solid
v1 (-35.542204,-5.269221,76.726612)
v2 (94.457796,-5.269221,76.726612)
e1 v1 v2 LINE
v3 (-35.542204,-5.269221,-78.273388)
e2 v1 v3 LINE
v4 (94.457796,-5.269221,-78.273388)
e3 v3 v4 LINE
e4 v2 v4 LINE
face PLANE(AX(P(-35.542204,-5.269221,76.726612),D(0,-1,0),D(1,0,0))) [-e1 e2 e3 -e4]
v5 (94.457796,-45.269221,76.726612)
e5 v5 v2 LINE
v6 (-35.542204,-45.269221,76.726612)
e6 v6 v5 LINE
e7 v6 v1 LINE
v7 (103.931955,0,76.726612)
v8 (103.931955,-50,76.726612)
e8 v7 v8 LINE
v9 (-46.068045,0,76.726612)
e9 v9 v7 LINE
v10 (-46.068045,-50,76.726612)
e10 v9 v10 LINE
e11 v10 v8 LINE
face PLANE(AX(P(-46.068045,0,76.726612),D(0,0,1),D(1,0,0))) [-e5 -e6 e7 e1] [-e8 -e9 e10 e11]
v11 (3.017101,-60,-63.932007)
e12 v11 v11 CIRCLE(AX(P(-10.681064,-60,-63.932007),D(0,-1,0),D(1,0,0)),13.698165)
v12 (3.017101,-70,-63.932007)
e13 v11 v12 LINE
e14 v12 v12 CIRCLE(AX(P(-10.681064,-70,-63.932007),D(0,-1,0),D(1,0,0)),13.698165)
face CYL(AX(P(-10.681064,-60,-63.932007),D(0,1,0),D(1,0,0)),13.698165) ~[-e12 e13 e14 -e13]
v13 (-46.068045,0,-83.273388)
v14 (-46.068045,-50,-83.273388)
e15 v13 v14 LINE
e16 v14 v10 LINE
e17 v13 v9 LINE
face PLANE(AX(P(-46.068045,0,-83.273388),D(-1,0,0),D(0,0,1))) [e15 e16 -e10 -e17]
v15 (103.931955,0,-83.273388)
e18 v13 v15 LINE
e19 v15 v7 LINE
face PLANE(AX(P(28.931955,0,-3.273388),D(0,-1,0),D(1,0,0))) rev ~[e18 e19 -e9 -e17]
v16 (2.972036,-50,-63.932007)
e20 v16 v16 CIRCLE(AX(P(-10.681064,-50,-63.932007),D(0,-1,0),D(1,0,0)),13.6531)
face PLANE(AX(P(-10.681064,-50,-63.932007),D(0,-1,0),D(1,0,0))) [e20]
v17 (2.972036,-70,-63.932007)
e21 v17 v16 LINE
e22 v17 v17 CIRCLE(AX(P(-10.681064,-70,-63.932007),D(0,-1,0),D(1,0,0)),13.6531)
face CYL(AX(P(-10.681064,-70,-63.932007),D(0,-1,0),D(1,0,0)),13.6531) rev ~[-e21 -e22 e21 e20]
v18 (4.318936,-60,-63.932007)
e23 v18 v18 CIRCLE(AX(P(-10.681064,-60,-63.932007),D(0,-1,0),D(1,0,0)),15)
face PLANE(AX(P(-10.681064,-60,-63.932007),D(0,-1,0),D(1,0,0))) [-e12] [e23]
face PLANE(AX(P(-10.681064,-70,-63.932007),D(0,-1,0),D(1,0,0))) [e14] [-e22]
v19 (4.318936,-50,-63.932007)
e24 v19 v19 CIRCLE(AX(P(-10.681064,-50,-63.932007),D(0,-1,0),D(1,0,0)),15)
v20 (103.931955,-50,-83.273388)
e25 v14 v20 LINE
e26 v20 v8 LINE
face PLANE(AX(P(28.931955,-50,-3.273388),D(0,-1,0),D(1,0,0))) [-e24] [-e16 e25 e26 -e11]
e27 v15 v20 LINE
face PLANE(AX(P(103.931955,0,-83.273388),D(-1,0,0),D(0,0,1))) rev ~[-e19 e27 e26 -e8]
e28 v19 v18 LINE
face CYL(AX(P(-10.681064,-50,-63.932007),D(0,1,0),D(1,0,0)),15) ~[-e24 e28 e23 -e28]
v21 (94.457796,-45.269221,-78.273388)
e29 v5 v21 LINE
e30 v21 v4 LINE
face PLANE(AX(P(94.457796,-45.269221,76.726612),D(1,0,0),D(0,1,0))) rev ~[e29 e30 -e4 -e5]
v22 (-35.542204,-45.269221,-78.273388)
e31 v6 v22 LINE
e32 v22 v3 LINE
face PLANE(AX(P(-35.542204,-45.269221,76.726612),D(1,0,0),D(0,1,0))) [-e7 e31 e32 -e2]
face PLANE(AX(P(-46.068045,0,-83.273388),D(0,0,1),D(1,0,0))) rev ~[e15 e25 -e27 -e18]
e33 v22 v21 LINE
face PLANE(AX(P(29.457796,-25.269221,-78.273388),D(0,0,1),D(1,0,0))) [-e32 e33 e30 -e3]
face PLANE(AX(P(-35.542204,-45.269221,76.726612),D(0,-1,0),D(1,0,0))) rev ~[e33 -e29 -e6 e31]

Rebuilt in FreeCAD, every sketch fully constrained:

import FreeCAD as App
import Part
import Sketcher

V = App.Vector

doc = App.newDocument("Part")
body = doc.addObject("PartDesign::Body", "Body")

# Sketch on XZ plane
sketch1 = body.newObject("Sketcher::SketchObject", "Sketch")
sketch1.AttachmentSupport = (doc.getObject("XZ_Plane"), [""])
sketch1.MapMode = "FlatFace"
sketch1.addGeometry([
    Part.LineSegment(V(-46, 77, 0), V(-46, -83, 0)),
    Part.LineSegment(V(-46, -83, 0), V(104, -83, 0)),
    Part.LineSegment(V(104, -83, 0), V(104, 77, 0)),
    Part.LineSegment(V(104, 77, 0), V(-46, 77, 0)),
], False)
sketch1.addConstraint([
    Sketcher.Constraint("Coincident", 0, 2, 1, 1),
    Sketcher.Constraint("Coincident", 1, 2, 2, 1),
    Sketcher.Constraint("Coincident", 2, 2, 3, 1),
    Sketcher.Constraint("Coincident", 3, 2, 0, 1),
    Sketcher.Constraint("Vertical", 0),
    Sketcher.Constraint("Horizontal", 1),
    Sketcher.Constraint("Vertical", 2),
    Sketcher.Constraint("Horizontal", 3),
    Sketcher.Constraint("DistanceX", 1, 1, 1, 2, 150.0),
    Sketcher.Constraint("DistanceY", 0, 2, 0, 1, 160.0),
    Sketcher.Constraint("DistanceX", 0, 2, -1, 1, 46.068045),
    Sketcher.Constraint("DistanceY", 0, 2, -1, 1, 83.273388),
])
pad1 = body.newObject("PartDesign::Pad", "Pad")
pad1.Profile = sketch1
pad1.Length = 50

# Sketch on XY plane
sketch2 = body.newObject("Sketcher::SketchObject", "Sketch001")
sketch2.AttachmentSupport = (doc.getObject("XY_Plane"), [""])
sketch2.MapMode = "FlatFace"
sketch2.AttachmentOffset = App.Placement(V(0, 0, 76.726612), App.Rotation())
sketch2.addGeometry([
    Part.LineSegment(V(-36, -5, 0), V(-36, -45, 0)),
    Part.LineSegment(V(-36, -45, 0), V(94, -45, 0)),
    Part.LineSegment(V(94, -45, 0), V(94, -5, 0)),
    Part.LineSegment(V(94, -5, 0), V(-36, -5, 0)),
], False)
sketch2.addConstraint([
    Sketcher.Constraint("Coincident", 0, 2, 1, 1),
    Sketcher.Constraint("Coincident", 1, 2, 2, 1),
    Sketcher.Constraint("Coincident", 2, 2, 3, 1),
    Sketcher.Constraint("Coincident", 3, 2, 0, 1),
    Sketcher.Constraint("Vertical", 0),
    Sketcher.Constraint("Horizontal", 1),
    Sketcher.Constraint("Vertical", 2),
    Sketcher.Constraint("Horizontal", 3),
    Sketcher.Constraint("DistanceX", 1, 1, 1, 2, 130.0),
    Sketcher.Constraint("DistanceY", 0, 2, 0, 1, 40.0),
    Sketcher.Constraint("DistanceY", 0, 2, -1, 1, 45.269221),
    Sketcher.Constraint("DistanceX", 0, 2, -1, 1, 35.542204),
])
pocket1 = body.newObject("PartDesign::Pocket", "Pocket")
pocket1.Profile = sketch2
pocket1.Length = 155

# Sketch on XZ plane
sketch3 = body.newObject("Sketcher::SketchObject", "Sketch002")
sketch3.AttachmentSupport = (doc.getObject("XZ_Plane"), [""])
sketch3.MapMode = "FlatFace"
sketch3.AttachmentOffset = App.Placement(V(0, 0, 50), App.Rotation())
sketch3.addGeometry(Part.Circle(V(-11, -64, 0), V(0, 0, 1), 15), False)
sketch3.addConstraint([
    Sketcher.Constraint("Diameter", 0, 30.0),
    Sketcher.Constraint("DistanceX", 0, 3, -1, 1, 10.681064),
    Sketcher.Constraint("DistanceY", 0, 3, -1, 1, 63.932007),
])
pad2 = body.newObject("PartDesign::Pad", "Pad001")
pad2.Profile = sketch3
pad2.Length = 10

# Sketch on XZ plane
sketch4 = body.newObject("Sketcher::SketchObject", "Sketch003")
sketch4.AttachmentSupport = (doc.getObject("XZ_Plane"), [""])
sketch4.MapMode = "FlatFace"
sketch4.AttachmentOffset = App.Placement(V(0, 0, 60), App.Rotation())
sketch4.addGeometry(Part.Circle(V(-11, -64, 0), V(0, 0, 1), 14), False)
sketch4.addConstraint([
    Sketcher.Constraint("Diameter", 0, 27.39633),
    Sketcher.Constraint("DistanceX", 0, 3, -1, 1, 10.681064),
    Sketcher.Constraint("DistanceY", 0, 3, -1, 1, 63.932007),
])
pad3 = body.newObject("PartDesign::Pad", "Pad002")
pad3.Profile = sketch4
pad3.Length = 10

# Sketch on XZ plane
sketch5 = body.newObject("Sketcher::SketchObject", "Sketch004")
sketch5.AttachmentSupport = (doc.getObject("XZ_Plane"), [""])
sketch5.MapMode = "FlatFace"
sketch5.AttachmentOffset = App.Placement(V(0, 0, 70), App.Rotation())
sketch5.addGeometry(Part.Circle(V(-11, -64, 0), V(0, 0, 1), 14), False)
sketch5.addConstraint([
    Sketcher.Constraint("Diameter", 0, 27.3062),
    Sketcher.Constraint("DistanceX", 0, 3, -1, 1, 10.681064),
    Sketcher.Constraint("DistanceY", 0, 3, -1, 1, 63.932007),
])
pocket2 = body.newObject("PartDesign::Pocket", "Pocket001")
pocket2.Profile = sketch5
pocket2.Length = 20

doc.recompute()
